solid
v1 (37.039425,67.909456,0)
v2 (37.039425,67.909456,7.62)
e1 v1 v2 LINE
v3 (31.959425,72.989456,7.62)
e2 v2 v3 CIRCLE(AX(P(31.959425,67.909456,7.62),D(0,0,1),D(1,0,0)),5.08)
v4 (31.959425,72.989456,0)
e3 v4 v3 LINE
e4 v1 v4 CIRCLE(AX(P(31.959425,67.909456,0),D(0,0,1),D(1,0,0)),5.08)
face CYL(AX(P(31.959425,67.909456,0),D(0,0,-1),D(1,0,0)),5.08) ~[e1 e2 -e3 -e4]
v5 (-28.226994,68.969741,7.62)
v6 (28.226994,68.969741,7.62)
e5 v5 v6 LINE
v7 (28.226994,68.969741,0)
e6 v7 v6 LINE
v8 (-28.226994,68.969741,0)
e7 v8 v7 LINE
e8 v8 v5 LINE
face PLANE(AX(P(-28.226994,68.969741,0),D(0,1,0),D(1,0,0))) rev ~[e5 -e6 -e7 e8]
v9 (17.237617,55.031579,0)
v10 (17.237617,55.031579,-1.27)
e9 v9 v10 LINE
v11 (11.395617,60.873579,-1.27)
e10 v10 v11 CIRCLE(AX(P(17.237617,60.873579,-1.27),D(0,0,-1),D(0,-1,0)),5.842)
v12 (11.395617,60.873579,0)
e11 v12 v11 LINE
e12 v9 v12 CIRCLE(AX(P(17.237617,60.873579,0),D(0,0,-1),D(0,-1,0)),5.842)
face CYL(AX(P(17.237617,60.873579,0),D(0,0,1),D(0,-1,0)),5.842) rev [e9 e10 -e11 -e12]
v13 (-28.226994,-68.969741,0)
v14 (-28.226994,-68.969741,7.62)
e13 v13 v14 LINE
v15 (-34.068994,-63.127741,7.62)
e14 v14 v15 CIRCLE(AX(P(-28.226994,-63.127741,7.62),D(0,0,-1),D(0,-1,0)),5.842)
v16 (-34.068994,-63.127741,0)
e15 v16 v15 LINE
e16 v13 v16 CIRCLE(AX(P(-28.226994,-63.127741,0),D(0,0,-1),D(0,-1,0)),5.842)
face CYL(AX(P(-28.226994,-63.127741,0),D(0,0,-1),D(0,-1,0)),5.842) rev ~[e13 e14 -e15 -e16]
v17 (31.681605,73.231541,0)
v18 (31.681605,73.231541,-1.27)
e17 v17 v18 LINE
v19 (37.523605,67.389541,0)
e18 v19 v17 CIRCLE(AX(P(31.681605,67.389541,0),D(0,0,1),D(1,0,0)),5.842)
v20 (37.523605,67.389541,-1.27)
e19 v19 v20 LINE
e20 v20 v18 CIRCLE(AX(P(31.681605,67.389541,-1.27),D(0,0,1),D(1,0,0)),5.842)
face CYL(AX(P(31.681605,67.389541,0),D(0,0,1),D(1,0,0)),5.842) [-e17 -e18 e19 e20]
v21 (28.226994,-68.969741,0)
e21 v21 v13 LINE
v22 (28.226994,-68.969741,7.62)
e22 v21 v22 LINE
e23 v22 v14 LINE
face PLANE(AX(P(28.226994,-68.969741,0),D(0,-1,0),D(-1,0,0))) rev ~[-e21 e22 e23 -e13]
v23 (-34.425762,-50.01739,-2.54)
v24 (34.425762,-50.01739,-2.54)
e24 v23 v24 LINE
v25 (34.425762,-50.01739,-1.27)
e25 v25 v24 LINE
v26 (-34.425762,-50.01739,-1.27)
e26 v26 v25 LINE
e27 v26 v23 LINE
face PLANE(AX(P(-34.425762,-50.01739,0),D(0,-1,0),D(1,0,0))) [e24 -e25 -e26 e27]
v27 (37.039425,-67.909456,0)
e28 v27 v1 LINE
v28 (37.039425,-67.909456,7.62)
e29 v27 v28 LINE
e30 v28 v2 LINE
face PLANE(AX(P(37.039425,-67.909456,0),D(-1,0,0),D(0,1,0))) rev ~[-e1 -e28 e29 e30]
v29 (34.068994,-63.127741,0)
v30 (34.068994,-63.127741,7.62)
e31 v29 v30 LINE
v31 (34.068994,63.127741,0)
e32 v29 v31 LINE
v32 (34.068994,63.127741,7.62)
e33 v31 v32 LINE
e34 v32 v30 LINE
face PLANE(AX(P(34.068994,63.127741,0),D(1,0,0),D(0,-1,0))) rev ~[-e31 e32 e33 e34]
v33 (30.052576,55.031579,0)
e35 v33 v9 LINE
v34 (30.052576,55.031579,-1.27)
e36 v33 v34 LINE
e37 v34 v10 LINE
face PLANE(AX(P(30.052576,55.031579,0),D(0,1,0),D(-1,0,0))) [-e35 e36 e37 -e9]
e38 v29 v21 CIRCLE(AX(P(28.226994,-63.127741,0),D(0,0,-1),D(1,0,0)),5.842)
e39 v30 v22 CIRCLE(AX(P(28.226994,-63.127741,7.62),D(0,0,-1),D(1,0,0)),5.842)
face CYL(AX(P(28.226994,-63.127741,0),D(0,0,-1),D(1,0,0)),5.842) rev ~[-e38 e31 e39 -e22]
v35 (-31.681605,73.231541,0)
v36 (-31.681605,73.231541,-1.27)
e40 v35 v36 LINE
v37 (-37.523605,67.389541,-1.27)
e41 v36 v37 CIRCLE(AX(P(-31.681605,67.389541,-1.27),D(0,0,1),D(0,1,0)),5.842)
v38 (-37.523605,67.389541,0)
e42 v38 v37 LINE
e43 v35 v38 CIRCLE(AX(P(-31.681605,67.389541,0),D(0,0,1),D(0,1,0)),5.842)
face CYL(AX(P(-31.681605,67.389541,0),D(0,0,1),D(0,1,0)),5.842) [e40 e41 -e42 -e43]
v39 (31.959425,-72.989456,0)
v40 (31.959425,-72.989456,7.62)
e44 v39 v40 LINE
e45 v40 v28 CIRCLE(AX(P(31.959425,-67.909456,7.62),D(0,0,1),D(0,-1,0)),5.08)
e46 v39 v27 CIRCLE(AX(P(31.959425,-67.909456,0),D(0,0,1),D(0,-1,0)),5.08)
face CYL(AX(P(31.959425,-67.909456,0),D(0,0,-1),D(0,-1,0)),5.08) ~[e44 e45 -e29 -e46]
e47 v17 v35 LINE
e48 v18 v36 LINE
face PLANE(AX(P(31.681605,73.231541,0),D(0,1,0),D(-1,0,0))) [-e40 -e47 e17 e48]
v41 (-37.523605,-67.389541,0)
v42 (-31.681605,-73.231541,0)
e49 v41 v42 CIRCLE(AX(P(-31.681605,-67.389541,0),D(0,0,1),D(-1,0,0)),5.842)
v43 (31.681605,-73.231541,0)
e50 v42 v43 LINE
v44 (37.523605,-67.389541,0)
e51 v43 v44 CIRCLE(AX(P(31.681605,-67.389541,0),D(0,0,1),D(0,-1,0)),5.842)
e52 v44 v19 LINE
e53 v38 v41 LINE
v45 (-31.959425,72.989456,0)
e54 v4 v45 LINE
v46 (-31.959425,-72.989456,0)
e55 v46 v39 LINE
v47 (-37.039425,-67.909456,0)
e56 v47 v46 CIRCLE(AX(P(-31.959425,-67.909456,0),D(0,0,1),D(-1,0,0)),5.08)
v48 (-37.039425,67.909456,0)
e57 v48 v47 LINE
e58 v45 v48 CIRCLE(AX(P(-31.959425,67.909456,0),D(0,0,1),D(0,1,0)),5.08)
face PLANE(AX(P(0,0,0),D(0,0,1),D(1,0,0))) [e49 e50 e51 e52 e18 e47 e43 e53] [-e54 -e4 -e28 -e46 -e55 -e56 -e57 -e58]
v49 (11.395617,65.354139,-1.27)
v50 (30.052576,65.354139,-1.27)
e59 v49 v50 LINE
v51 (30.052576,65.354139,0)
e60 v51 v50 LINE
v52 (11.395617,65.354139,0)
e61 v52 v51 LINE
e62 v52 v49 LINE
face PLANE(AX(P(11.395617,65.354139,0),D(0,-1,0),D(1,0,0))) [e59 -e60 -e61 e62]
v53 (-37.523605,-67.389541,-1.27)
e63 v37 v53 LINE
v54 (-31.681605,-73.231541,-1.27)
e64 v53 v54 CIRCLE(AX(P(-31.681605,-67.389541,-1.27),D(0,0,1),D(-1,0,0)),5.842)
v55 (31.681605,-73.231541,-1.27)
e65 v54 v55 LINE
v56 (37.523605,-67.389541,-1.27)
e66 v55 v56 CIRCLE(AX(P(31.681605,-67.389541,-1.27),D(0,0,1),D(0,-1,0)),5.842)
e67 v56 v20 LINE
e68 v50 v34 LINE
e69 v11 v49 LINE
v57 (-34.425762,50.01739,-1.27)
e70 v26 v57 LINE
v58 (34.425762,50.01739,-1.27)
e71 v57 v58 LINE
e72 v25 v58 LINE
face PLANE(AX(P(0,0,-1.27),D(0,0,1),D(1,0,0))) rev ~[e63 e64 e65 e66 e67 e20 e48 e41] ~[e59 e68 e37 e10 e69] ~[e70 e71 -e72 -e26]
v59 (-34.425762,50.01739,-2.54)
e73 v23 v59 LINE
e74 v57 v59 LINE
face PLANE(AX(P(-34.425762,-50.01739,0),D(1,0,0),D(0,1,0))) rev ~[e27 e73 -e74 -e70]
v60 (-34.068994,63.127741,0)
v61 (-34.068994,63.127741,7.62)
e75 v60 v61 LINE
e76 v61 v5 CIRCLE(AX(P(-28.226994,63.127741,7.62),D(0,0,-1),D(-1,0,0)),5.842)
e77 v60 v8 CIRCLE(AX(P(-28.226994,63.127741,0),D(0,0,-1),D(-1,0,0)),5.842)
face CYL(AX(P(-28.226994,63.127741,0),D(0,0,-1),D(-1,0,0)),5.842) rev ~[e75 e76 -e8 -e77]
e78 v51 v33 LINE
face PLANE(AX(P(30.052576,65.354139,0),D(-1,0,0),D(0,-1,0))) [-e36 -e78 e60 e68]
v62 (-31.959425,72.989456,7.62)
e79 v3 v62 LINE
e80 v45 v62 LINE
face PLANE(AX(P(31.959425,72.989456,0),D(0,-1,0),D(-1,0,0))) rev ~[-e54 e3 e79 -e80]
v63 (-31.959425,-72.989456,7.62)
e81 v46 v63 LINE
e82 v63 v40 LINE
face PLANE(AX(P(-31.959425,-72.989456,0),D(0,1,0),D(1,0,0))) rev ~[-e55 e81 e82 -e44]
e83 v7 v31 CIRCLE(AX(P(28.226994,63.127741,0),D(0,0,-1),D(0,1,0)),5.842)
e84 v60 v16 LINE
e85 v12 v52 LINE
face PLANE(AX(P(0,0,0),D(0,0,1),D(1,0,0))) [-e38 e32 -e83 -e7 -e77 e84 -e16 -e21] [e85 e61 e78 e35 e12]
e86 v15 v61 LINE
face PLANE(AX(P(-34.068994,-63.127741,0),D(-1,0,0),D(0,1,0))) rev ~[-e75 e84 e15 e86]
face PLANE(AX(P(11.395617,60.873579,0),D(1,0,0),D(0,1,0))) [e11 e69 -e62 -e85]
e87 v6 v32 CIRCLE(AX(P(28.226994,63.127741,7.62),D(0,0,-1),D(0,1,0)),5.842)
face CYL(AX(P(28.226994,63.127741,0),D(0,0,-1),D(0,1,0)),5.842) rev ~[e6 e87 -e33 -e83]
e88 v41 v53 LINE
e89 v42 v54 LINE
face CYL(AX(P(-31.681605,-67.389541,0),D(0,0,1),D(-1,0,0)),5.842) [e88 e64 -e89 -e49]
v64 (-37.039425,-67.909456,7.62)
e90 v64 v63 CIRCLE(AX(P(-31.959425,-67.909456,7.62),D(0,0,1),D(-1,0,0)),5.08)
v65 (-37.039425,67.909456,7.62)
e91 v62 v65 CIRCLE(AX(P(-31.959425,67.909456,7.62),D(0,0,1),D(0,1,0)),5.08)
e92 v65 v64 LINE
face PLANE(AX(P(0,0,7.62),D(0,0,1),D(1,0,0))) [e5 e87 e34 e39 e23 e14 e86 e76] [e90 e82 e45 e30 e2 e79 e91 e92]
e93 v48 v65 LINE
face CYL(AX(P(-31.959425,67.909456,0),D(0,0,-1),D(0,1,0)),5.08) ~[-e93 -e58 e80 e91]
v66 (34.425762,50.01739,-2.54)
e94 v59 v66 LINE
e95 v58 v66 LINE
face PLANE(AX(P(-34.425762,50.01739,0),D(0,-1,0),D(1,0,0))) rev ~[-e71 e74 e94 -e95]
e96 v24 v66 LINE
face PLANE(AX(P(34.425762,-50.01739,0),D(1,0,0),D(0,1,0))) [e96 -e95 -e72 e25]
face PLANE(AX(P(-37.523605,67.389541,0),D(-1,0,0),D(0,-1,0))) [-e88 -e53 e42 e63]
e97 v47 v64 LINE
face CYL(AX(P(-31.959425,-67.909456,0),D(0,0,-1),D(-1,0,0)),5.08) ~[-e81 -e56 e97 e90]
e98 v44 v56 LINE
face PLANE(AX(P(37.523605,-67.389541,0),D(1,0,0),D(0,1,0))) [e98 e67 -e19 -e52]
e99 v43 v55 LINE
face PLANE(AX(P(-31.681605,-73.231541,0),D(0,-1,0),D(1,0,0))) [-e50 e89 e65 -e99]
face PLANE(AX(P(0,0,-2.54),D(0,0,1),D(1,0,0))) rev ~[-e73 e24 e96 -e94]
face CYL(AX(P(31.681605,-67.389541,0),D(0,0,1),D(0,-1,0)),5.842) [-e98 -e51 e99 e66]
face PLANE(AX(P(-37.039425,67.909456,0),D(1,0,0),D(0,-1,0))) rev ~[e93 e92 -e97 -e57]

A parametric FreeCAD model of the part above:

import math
import FreeCAD as App
import Part
import Sketcher
from FreeCAD import Vector
Q = App.Units.Quantity

doc = App.newDocument("Part")
body = doc.addObject("PartDesign::Body", "Body")

# Sketch on XY plane
sketch1 = doc.addObject("Sketcher::SketchObject", "Sketch")
body.addObject(sketch1)
sketch1.AttachmentSupport = (doc.XY_Plane, [""])
sketch1.MapMode = "FlatFace"
sketch1.addGeometry(Part.ArcOfCircle(Part.Circle(Vector(-31.7, -67.4, 0), Vector(0, 0, 1), 5.8), math.radians(180), math.radians(270)), False)
sketch1.addGeometry(Part.LineSegment(Vector(-31.7, -73.2, 0), Vector(31.7, -73.2, 0)), False)
sketch1.addGeometry(Part.ArcOfCircle(Part.Circle(Vector(31.7, -67.4, 0), Vector(0, 0, 1), 5.8), math.radians(-90), math.radians(0)), False)
sketch1.addGeometry(Part.LineSegment(Vector(37.5, -67.4, 0), Vector(37.5, 67.4, 0)), False)
sketch1.addGeometry(Part.ArcOfCircle(Part.Circle(Vector(31.7, 67.4, 0), Vector(0, 0, 1), 5.8), math.radians(0), math.radians(90)), False)
sketch1.addGeometry(Part.LineSegment(Vector(31.7, 73.2, 0), Vector(-31.7, 73.2, 0)), False)
sketch1.addGeometry(Part.ArcOfCircle(Part.Circle(Vector(-31.7, 67.4, 0), Vector(0, 0, 1), 5.8), math.radians(90), math.radians(180)), False)
sketch1.addGeometry(Part.LineSegment(Vector(-37.5, 67.4, 0), Vector(-37.5, -67.4, 0)), False)
sketch1.addGeometry(Part.LineSegment(Vector(34.4, -50, 0), Vector(-34.4, -50, 0)), False)
sketch1.addGeometry(Part.LineSegment(Vector(-34.4, -50, 0), Vector(-34.4, 50, 0)), False)
sketch1.addGeometry(Part.LineSegment(Vector(-34.4, 50, 0), Vector(34.4, 50, 0)), False)
sketch1.addGeometry(Part.LineSegment(Vector(34.4, 50, 0), Vector(34.4, -50, 0)), False)
sketch1.addGeometry(Part.LineSegment(Vector(11.4, 60.9, 0), Vector(11.4, 65.4, 0)), False)
sketch1.addGeometry(Part.LineSegment(Vector(11.4, 65.4, 0), Vector(30.1, 65.4, 0)), False)
sketch1.addGeometry(Part.LineSegment(Vector(30.1, 65.4, 0), Vector(30.1, 55, 0)), False)
sketch1.addGeometry(Part.LineSegment(Vector(30.1, 55, 0), Vector(17.2, 55, 0)), False)
sketch1.addGeometry(Part.ArcOfCircle(Part.Circle(Vector(17.2, 60.9, 0), Vector(0, 0, 1), 5.8), math.radians(180), math.radians(270)), False)
sketch1.addConstraint(Sketcher.Constraint("Tangent", 0, 2, 1, 1))
sketch1.addConstraint(Sketcher.Constraint("Tangent", 1, 2, 2, 1))
sketch1.addConstraint(Sketcher.Constraint("Tangent", 2, 2, 3, 1))
sketch1.addConstraint(Sketcher.Constraint("Tangent", 3, 2, 4, 1))
sketch1.addConstraint(Sketcher.Constraint("Tangent", 4, 2, 5, 1))
sketch1.addConstraint(Sketcher.Constraint("Tangent", 5, 2, 6, 1))
sketch1.addConstraint(Sketcher.Constraint("Tangent", 6, 2, 7, 1))
sketch1.addConstraint(Sketcher.Constraint("Tangent", 7, 2, 0, 1))
sketch1.addConstraint(Sketcher.Constraint("Coincident", 8, 2, 9, 1))
sketch1.addConstraint(Sketcher.Constraint("Coincident", 9, 2, 10, 1))
sketch1.addConstraint(Sketcher.Constraint("Coincident", 10, 2, 11, 1))
sketch1.addConstraint(Sketcher.Constraint("Coincident", 11, 2, 8, 1))
sketch1.addConstraint(Sketcher.Constraint("Coincident", 12, 2, 13, 1))
sketch1.addConstraint(Sketcher.Constraint("Coincident", 13, 2, 14, 1))
sketch1.addConstraint(Sketcher.Constraint("Coincident", 14, 2, 15, 1))
sketch1.addConstraint(Sketcher.Constraint("Tangent", 15, 2, 16, 2))
sketch1.addConstraint(Sketcher.Constraint("Tangent", 16, 1, 12, 1))
sketch1.addConstraint(Sketcher.Constraint("Horizontal", 1))
sketch1.addConstraint(Sketcher.Constraint("Vertical", 3))
sketch1.addConstraint(Sketcher.Constraint("Horizontal", 5))
sketch1.addConstraint(Sketcher.Constraint("Vertical", 7))
sketch1.addConstraint(Sketcher.Constraint("Horizontal", 8))
sketch1.addConstraint(Sketcher.Constraint("Vertical", 9))
sketch1.addConstraint(Sketcher.Constraint("Horizontal", 10))
sketch1.addConstraint(Sketcher.Constraint("Vertical", 11))
sketch1.addConstraint(Sketcher.Constraint("Vertical", 12))
sketch1.addConstraint(Sketcher.Constraint("Horizontal", 13))
sketch1.addConstraint(Sketcher.Constraint("Vertical", 14))
sketch1.addConstraint(Sketcher.Constraint("Horizontal", 15))
sketch1.addConstraint(Sketcher.Constraint("Equal", 0, 2))
sketch1.addConstraint(Sketcher.Constraint("Equal", 2, 4))
sketch1.addConstraint(Sketcher.Constraint("Equal", 4, 6))
sketch1.addConstraint(Sketcher.Constraint("Equal", 6, 16))
sketch1.addConstraint(Sketcher.Constraint("Symmetric", 0, 3, 4, 3, -1, 1))
sketch1.addConstraint(Sketcher.Constraint("Symmetric", 8, 2, 10, 2, -1, 1))
sketch1.addConstraint(Sketcher.Constraint("Radius", 0, Q("0.23 in")))
sketch1.addConstraint(Sketcher.Constraint("DistanceY", 12, 1, 12, 2, Q("0.1764 in")))
sketch1.addConstraint(Sketcher.Constraint("DistanceX", 1, 1, 1, 2, Q("63.36321 mm")))
sketch1.addConstraint(Sketcher.Constraint("DistanceX", 13, 1, 13, 2, Q("18.656959 mm")))
sketch1.addConstraint(Sketcher.Constraint("DistanceY", 3, 1, 3, 2, Q("134.779081 mm")))
sketch1.addConstraint(Sketcher.Constraint("DistanceY", 9, 1, 9, 2, Q("100.034781 mm")))
sketch1.addConstraint(Sketcher.Constraint("DistanceX", 8, 2, 8, 1, Q("68.851523 mm")))
sketch1.addConstraint(Sketcher.Constraint("DistanceY", -1, 1, 16, 3, Q("60.873579 mm")))
sketch1.addConstraint(Sketcher.Constraint("DistanceX", 9, 2, 16, 3, Q("51.663379 mm")))
pad1 = doc.addObject("PartDesign::Pad", "Pad")
body.addObject(pad1)
pad1.Profile = sketch1
pad1.Length = Q("0.05 in")
pad1.Reversed = True

# Sketch on XY plane
sketch2 = doc.addObject("Sketcher::SketchObject", "Sketch001")
body.addObject(sketch2)
sketch2.AttachmentSupport = (doc.XY_Plane, [""])
sketch2.MapMode = "FlatFace"
sketch2.addGeometry(Part.LineSegment(Vector(32, 73, 0), Vector(-32, 73, 0)), False)
sketch2.addGeometry(Part.ArcOfCircle(Part.Circle(Vector(-32, 68, 0), Vector(0, 0, 1), 5), math.radians(90), math.radians(180)), False)
sketch2.addGeometry(Part.LineSegment(Vector(-37, 68, 0), Vector(-37, -68, 0)), False)
sketch2.addGeometry(Part.ArcOfCircle(Part.Circle(Vector(-32, -68, 0), Vector(0, 0, 1), 5), math.radians(180), math.radians(270)), False)
sketch2.addGeometry(Part.LineSegment(Vector(-32, -73, 0), Vector(32, -73, 0)), False)
sketch2.addGeometry(Part.ArcOfCircle(Part.Circle(Vector(32, -68, 0), Vector(0, 0, 1), 5), math.radians(-90), math.radians(0)), False)
sketch2.addGeometry(Part.LineSegment(Vector(37, -68, 0), Vector(37, 68, 0)), False)
sketch2.addGeometry(Part.ArcOfCircle(Part.Circle(Vector(32, 68, 0), Vector(0, 0, 1), 5), math.radians(0), math.radians(90)), False)
sketch2.addGeometry(Part.ArcOfCircle(Part.Circle(Vector(-28, 63, 0), Vector(0, 0, 1), 6), math.radians(90), math.radians(180)), False)
sketch2.addGeometry(Part.LineSegment(Vector(-28, 69, 0), Vector(28, 69, 0)), False)
sketch2.addGeometry(Part.ArcOfCircle(Part.Circle(Vector(28, 63, 0), Vector(0, 0, 1), 6), math.radians(0), math.radians(90)), False)
sketch2.addGeometry(Part.LineSegment(Vector(34, 63, 0), Vector(34, -63, 0)), False)
sketch2.addGeometry(Part.ArcOfCircle(Part.Circle(Vector(28, -63, 0), Vector(0, 0, 1), 6), math.radians(-90), math.radians(0)), False)
sketch2.addGeometry(Part.LineSegment(Vector(28, -69, 0), Vector(-28, -69, 0)), False)
sketch2.addGeometry(Part.ArcOfCircle(Part.Circle(Vector(-28, -63, 0), Vector(0, 0, 1), 6), math.radians(180), math.radians(270)), False)
sketch2.addGeometry(Part.LineSegment(Vector(-34, -63, 0), Vector(-34, 63, 0)), False)
sketch2.addConstraint(Sketcher.Constraint("Tangent", 0, 2, 1, 1))
sketch2.addConstraint(Sketcher.Constraint("Tangent", 1, 2, 2, 1))
sketch2.addConstraint(Sketcher.Constraint("Tangent", 2, 2, 3, 1))
sketch2.addConstraint(Sketcher.Constraint("Tangent", 3, 2, 4, 1))
sketch2.addConstraint(Sketcher.Constraint("Tangent", 4, 2, 5, 1))
sketch2.addConstraint(Sketcher.Constraint("Tangent", 5, 2, 6, 1))
sketch2.addConstraint(Sketcher.Constraint("Tangent", 6, 2, 7, 1))
sketch2.addConstraint(Sketcher.Constraint("Tangent", 7, 2, 0, 1))
sketch2.addConstraint(Sketcher.Constraint("Tangent", 8, 1, 9, 1))
sketch2.addConstraint(Sketcher.Constraint("Tangent", 9, 2, 10, 2))
sketch2.addConstraint(Sketcher.Constraint("Tangent", 10, 1, 11, 1))
sketch2.addConstraint(Sketcher.Constraint("Tangent", 11, 2, 12, 2))
sketch2.addConstraint(Sketcher.Constraint("Tangent", 12, 1, 13, 1))
sketch2.addConstraint(Sketcher.Constraint("Tangent", 13, 2, 14, 2))
sketch2.addConstraint(Sketcher.Constraint("Tangent", 14, 1, 15, 1))
sketch2.addConstraint(Sketcher.Constraint("Tangent", 15, 2, 8, 2))
sketch2.addConstraint(Sketcher.Constraint("Horizontal", 0))
sketch2.addConstraint(Sketcher.Constraint("Vertical", 2))
sketch2.addConstraint(Sketcher.Constraint("Horizontal", 4))
sketch2.addConstraint(Sketcher.Constraint("Vertical", 6))
sketch2.addConstraint(Sketcher.Constraint("Horizontal", 9))
sketch2.addConstraint(Sketcher.Constraint("Vertical", 11))
sketch2.addConstraint(Sketcher.Constraint("Horizontal", 13))
sketch2.addConstraint(Sketcher.Constraint("Vertical", 15))
sketch2.addConstraint(Sketcher.Constraint("Equal", 1, 3))
sketch2.addConstraint(Sketcher.Constraint("Equal", 3, 5))
sketch2.addConstraint(Sketcher.Constraint("Equal", 5, 7))
sketch2.addConstraint(Sketcher.Constraint("Equal", 8, 10))
sketch2.addConstraint(Sketcher.Constraint("Equal", 10, 12))
sketch2.addConstraint(Sketcher.Constraint("Equal", 12, 14))
sketch2.addConstraint(Sketcher.Constraint("Symmetric", 1, 3, 5, 3, -1, 1))
sketch2.addConstraint(Sketcher.Constraint("Symmetric", 8, 3, 12, 3, -1, 1))
sketch2.addConstraint(Sketcher.Constraint("Radius", 1, Q("0.2 in")))
sketch2.addConstraint(Sketcher.Constraint("Radius", 8, Q("0.23 in")))
sketch2.addConstraint(Sketcher.Constraint("DistanceX", 0, 2, 0, 1, Q("63.91885 mm")))
sketch2.addConstraint(Sketcher.Constraint("DistanceX", 9, 1, 9, 2, Q("56.453988 mm")))
sketch2.addConstraint(Sketcher.Constraint("DistanceY", 2, 2, 2, 1, Q("135.818913 mm")))
sketch2.addConstraint(Sketcher.Constraint("DistanceY", 11, 2, 11, 1, Q("126.255483 mm")))
pad2 = doc.addObject("PartDesign::Pad", "Pad001")
body.addObject(pad2)
pad2.Profile = sketch2
pad2.Length = Q("0.3 in")

# Sketch on XY plane
sketch3 = doc.addObject("Sketcher::SketchObject", "Sketch002")
body.addObject(sketch3)
sketch3.AttachmentSupport = (doc.XY_Plane, [""])
sketch3.MapMode = "FlatFace"
sketch3.addGeometry(Part.LineSegment(Vector(-34, 50, 0), Vector(-34, -50, 0)), False)
sketch3.addGeometry(Part.LineSegment(Vector(-34, -50, 0), Vector(34, -50, 0)), False)
sketch3.addGeometry(Part.LineSegment(Vector(34, -50, 0), Vector(34, 50, 0)), False)
sketch3.addGeometry(Part.LineSegment(Vector(34, 50, 0), Vector(-34, 50, 0)), False)
sketch3.addConstraint(Sketcher.Constraint("Coincident", 0, 2, 1, 1))
sketch3.addConstraint(Sketcher.Constraint("Coincident", 1, 2, 2, 1))
sketch3.addConstraint(Sketcher.Constraint("Coincident", 2, 2, 3, 1))
sketch3.addConstraint(Sketcher.Constraint("Coincident", 3, 2, 0, 1))
sketch3.addConstraint(Sketcher.Constraint("Vertical", 0))
sketch3.addConstraint(Sketcher.Constraint("Horizontal", 1))
sketch3.addConstraint(Sketcher.Constraint("Vertical", 2))
sketch3.addConstraint(Sketcher.Constraint("Horizontal", 3))
sketch3.addConstraint(Sketcher.Constraint("Symmetric", 0, 2, 2, 2, -1, 1))
sketch3.addConstraint(Sketcher.Constraint("DistanceY", 0, 2, 0, 1, Q("100.034781 mm")))
sketch3.addConstraint(Sketcher.Constraint("DistanceX", 1, 1, 1, 2, Q("68.851523 mm")))
pad3 = doc.addObject("PartDesign::Pad", "Pad002")
body.addObject(pad3)
pad3.Profile = sketch3
pad3.Length = Q("0.1 in")
pad3.Reversed = True

doc.recompute()
